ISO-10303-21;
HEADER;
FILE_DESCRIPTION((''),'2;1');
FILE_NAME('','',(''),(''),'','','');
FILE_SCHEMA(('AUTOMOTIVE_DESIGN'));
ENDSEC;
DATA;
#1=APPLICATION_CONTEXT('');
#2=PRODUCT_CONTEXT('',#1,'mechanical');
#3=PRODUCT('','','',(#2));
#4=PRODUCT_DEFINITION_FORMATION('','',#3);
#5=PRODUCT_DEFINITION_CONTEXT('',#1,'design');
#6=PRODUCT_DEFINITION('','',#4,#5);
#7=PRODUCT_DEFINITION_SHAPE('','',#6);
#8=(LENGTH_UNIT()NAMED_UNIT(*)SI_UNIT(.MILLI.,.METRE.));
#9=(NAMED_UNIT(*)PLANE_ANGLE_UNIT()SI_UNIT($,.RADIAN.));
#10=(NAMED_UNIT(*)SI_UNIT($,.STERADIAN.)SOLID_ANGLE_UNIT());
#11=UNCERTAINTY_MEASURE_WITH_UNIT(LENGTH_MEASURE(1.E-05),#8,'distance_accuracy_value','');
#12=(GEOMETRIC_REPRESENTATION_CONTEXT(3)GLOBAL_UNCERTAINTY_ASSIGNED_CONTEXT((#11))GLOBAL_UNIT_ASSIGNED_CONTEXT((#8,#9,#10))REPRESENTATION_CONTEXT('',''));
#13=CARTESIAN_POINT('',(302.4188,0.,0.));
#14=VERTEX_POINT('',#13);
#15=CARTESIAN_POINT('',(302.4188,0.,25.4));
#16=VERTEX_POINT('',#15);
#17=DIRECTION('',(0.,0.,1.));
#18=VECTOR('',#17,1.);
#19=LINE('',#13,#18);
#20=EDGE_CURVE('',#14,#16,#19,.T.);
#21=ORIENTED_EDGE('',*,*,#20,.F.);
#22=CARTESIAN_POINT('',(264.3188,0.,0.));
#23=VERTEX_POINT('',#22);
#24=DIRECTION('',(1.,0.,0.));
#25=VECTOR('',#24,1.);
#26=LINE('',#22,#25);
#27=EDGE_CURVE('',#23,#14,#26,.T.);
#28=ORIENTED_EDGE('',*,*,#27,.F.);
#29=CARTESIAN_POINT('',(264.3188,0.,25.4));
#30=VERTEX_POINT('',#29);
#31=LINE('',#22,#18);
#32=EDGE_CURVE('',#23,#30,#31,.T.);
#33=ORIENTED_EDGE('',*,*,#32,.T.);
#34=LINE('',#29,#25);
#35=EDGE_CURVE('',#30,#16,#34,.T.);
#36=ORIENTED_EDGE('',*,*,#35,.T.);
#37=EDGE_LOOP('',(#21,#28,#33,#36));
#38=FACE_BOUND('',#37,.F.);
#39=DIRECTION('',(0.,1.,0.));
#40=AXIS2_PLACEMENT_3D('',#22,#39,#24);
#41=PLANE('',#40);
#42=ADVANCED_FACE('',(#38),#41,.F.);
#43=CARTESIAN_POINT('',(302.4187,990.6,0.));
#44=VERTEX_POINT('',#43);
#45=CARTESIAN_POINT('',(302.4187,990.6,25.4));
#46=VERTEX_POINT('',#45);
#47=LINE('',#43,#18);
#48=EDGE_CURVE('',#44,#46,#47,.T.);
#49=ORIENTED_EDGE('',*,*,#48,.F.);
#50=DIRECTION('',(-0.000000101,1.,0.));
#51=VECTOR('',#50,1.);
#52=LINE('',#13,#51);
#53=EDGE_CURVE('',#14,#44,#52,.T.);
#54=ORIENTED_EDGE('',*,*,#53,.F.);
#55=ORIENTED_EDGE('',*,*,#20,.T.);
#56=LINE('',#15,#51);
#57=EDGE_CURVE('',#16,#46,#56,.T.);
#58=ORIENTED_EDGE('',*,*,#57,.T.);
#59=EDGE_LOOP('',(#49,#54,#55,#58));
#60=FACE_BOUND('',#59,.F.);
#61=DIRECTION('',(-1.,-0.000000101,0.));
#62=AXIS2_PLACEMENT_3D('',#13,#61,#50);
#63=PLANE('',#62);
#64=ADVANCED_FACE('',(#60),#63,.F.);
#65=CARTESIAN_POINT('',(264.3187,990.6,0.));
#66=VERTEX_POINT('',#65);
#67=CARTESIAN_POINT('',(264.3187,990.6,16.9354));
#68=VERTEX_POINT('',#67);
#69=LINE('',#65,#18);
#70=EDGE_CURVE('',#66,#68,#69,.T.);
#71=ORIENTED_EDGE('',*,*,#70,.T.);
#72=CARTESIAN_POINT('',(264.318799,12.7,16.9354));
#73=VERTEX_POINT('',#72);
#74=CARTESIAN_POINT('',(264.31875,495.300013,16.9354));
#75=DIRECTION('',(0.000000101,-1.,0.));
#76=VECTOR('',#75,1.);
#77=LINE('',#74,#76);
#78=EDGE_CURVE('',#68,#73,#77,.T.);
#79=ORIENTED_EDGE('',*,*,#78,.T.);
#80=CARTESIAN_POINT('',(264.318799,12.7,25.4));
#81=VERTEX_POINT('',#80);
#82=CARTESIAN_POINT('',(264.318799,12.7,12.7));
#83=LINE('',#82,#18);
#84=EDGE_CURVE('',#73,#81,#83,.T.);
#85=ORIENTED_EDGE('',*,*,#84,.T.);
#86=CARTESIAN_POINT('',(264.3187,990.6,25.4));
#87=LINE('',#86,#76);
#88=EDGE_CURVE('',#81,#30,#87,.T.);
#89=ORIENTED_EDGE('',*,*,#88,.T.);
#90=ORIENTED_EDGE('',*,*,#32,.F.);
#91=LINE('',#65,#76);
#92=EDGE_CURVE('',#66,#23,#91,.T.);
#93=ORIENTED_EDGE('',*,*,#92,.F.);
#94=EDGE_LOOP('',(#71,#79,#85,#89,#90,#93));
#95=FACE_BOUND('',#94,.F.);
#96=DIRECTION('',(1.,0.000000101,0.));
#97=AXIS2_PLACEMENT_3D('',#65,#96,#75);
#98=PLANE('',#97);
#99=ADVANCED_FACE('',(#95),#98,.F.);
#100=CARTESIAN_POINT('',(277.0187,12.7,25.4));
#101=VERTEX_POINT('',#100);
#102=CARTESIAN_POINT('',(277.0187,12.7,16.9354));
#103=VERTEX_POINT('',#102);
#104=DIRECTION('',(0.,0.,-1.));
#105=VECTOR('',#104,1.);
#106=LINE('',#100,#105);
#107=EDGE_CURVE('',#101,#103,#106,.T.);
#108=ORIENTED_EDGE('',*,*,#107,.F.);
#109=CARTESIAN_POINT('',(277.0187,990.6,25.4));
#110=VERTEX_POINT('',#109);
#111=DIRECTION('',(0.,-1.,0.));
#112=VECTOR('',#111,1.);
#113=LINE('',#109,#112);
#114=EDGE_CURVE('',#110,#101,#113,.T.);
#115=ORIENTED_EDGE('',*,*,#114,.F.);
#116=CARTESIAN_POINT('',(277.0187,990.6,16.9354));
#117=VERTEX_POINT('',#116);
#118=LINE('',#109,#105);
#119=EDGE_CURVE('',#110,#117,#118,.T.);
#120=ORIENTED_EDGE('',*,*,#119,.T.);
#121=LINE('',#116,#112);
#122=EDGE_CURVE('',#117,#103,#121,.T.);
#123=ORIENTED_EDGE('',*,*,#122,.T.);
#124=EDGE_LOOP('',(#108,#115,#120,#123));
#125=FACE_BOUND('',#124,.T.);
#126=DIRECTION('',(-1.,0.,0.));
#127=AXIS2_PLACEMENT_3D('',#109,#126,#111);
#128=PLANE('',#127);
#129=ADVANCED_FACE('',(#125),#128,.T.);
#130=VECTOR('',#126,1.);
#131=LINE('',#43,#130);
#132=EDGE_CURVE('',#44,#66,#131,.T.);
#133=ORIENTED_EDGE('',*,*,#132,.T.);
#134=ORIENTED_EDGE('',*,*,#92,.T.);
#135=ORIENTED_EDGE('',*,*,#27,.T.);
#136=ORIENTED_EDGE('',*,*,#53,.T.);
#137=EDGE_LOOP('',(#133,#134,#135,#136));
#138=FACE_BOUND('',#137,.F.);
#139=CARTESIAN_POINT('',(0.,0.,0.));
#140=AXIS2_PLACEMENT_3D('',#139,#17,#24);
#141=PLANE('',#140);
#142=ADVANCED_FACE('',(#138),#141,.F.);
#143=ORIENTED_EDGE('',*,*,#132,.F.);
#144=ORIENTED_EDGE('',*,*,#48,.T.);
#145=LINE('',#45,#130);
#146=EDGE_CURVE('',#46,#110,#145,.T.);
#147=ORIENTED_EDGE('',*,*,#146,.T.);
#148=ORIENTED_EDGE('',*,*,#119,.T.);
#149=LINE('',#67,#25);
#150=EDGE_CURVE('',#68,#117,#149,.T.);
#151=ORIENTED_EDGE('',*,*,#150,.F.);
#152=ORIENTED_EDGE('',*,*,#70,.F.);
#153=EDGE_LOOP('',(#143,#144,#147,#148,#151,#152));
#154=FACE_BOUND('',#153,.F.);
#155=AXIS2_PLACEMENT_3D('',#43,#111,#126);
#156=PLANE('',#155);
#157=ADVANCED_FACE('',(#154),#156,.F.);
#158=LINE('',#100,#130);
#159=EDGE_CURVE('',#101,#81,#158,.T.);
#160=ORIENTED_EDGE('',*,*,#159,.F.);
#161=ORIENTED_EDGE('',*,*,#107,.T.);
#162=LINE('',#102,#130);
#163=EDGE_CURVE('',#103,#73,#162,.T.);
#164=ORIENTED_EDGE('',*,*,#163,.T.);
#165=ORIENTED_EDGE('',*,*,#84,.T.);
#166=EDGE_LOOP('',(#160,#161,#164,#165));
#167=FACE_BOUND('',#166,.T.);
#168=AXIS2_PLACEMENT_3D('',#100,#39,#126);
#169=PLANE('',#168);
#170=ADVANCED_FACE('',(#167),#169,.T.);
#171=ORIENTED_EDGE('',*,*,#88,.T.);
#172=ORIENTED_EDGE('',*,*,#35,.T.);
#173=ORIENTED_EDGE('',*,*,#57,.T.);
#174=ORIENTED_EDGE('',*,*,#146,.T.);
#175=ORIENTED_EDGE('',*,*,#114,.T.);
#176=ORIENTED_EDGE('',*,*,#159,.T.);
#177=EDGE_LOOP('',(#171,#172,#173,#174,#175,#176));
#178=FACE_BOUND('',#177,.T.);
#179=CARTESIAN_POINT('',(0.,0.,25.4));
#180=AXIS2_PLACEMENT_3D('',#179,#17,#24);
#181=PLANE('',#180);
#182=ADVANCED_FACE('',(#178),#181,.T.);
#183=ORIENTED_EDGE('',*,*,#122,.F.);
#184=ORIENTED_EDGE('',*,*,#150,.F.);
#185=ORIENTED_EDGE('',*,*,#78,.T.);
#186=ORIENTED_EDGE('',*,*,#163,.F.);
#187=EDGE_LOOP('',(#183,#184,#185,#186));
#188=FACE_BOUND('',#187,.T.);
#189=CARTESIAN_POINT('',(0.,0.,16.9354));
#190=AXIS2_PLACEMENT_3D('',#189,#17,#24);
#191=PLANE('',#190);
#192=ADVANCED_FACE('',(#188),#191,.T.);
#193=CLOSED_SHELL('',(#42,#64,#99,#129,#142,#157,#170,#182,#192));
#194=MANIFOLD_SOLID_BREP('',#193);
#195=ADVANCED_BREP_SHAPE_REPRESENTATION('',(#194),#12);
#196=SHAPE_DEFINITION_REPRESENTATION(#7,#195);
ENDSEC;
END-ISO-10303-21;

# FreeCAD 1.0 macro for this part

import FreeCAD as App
import Part
import Sketcher
from FreeCAD import Vector
Q = App.Units.Quantity


def add_polygon(sketch, points):
    """Adds a closed chain of lines whose ends are joined by coincident constraints."""
    first, n = sketch.GeometryCount, len(points)
    for a, b in zip(points, points[1:] + points[:1]):
        sketch.addGeometry(Part.LineSegment(App.Vector(*a, 0), App.Vector(*b, 0)), False)
    for i in range(n):
        sketch.addConstraint(Sketcher.Constraint("Coincident", first + i, 2, first + (i + 1) % n, 1))

doc = App.newDocument("Part")
body = doc.addObject("PartDesign::Body", "Body")

# Sketch on XY plane
sketch1 = doc.addObject("Sketcher::SketchObject", "Sketch")
body.addObject(sketch1)
sketch1.AttachmentSupport = (doc.XY_Plane, [""])
sketch1.MapMode = "FlatFace"
add_polygon(sketch1, [(302, 0), (302, 991), (264, 991), (264, 0)])  # lines 0-3
sketch1.addConstraint(Sketcher.Constraint("Vertical", 0))
sketch1.addConstraint(Sketcher.Constraint("Horizontal", 1))
sketch1.addConstraint(Sketcher.Constraint("Vertical", 2))
sketch1.addConstraint(Sketcher.Constraint("Horizontal", 3))
sketch1.addConstraint(Sketcher.Constraint("PointOnObject", 2, 2, -1))
sketch1.addConstraint(Sketcher.Constraint("DistanceY", 0, 1, 0, 2, Q("39 in")))
sketch1.addConstraint(Sketcher.Constraint("DistanceX", 1, 2, 1, 1, Q("1.5 in")))
sketch1.addConstraint(Sketcher.Constraint("DistanceX", -1, 1, 0, 2, Q("11.906248 in")))
pad1 = doc.addObject("PartDesign::Pad", "Pad")
body.addObject(pad1)
pad1.Profile = sketch1
pad1.Length = Q("1 in")

# Sketch on XY plane
sketch2 = doc.addObject("Sketcher::SketchObject", "Sketch001")
body.addObject(sketch2)
sketch2.AttachmentSupport = (doc.XY_Plane, [""])
sketch2.MapMode = "FlatFace"
sketch2.AttachmentOffset = App.Placement(Vector(0, 0, 1 * 25.4), App.Rotation())
add_polygon(sketch2, [(277, 991), (264, 991), (264, 13), (277, 13)])  # lines 0-3
sketch2.addConstraint(Sketcher.Constraint("Horizontal", 0))
sketch2.addConstraint(Sketcher.Constraint("Vertical", 1))
sketch2.addConstraint(Sketcher.Constraint("Horizontal", 2))
sketch2.addConstraint(Sketcher.Constraint("Vertical", 3))
sketch2.addConstraint(Sketcher.Constraint("DistanceX", 0, 2, 0, 1, Q("0.5 in")))
sketch2.addConstraint(Sketcher.Constraint("DistanceY", 1, 2, 1, 1, Q("38.5 in")))
sketch2.addConstraint(Sketcher.Constraint("DistanceY", -1, 1, 1, 2, Q("0.5 in")))
sketch2.addConstraint(Sketcher.Constraint("DistanceX", -1, 1, 0, 2, Q("10.406248 in")))
pocket1 = doc.addObject("PartDesign::Pocket", "Pocket")
body.addObject(pocket1)
pocket1.Profile = sketch2
pocket1.Length = 8.4646

doc.recompute()
